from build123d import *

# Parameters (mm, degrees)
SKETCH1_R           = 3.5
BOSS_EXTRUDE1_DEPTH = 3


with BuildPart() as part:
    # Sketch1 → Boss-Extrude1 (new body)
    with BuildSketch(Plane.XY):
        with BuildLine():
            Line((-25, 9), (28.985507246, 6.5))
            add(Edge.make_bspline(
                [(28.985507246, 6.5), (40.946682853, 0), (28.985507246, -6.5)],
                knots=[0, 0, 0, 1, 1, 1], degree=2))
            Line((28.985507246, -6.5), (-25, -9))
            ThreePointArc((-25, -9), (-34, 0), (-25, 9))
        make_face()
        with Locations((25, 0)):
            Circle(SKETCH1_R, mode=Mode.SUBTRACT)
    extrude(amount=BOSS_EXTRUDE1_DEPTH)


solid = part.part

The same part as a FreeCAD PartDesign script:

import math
import FreeCAD as App
import Part
import Sketcher

doc = App.newDocument("Part")
params = doc.addObject("Spreadsheet::Sheet", "Params")
for row, (alias, value) in enumerate([
    ("sketch1_diameter", "7 mm"),
    ("sketch1_radius", "9 mm"),
    ("pad1_length", "3 mm"),
], start=1):
    params.set(f"A{row}", alias)
    params.set(f"B{row}", "=" + value)
    params.setAlias(f"B{row}", alias)

body = doc.addObject("PartDesign::Body", "Body")

# Sketch on XY plane
sketch1 = body.newObject("Sketcher::SketchObject", "Sketch")
sketch1.AttachmentSupport = (doc.getObject("XY_Plane"), [""])
sketch1.MapMode = "FlatFace"
sketch1.addGeometry([
    Part.LineSegment(App.Vector(28.985507, 6.5, 0), App.Vector(-25, 9, 0)),  # 0
    Part.ArcOfCircle(Part.Circle(App.Vector(-25, 0, 0), App.Vector(0, 0, 1), 9), math.radians(90), math.radians(270)),  # 1
    Part.LineSegment(App.Vector(-25, -9, 0), App.Vector(28.985507, -6.5, 0)),  # 2
    Part.BSplineCurve([App.Vector(28.985507, 6.5, 0), App.Vector(40.946683, 0, 0), App.Vector(28.985507, -6.5, 0)], [3, 3], [0, 1], False, 2, [1, 1, 1], False),  # 3
    Part.Circle(App.Vector(25, 0, 0), App.Vector(0, 0, 1), 3.5),  # 4
], False)
sketch1.addConstraint([
    Sketcher.Constraint("Block", 3),
    Sketcher.Constraint("Coincident", 0, 2, 1, 1),
    Sketcher.Constraint("Coincident", 1, 2, 2, 1),
    Sketcher.Constraint("Coincident", 2, 2, 3, 2),
    Sketcher.Constraint("Coincident", 3, 1, 0, 1),
    Sketcher.Constraint("Symmetric", 1, 3, 4, 3, -1, 1),
    Sketcher.Constraint("Symmetric", 0, 2, 1, 2, -1),
    Sketcher.Constraint("Vertical", 1, 3, 0, 2),
    Sketcher.Constraint("Diameter", 4, 7.0),
    Sketcher.Constraint("Radius", 1, 9.0),
    Sketcher.Constraint("DistanceX", 1, 3, -1, 1, 25.0),
])
sketch1.setExpression("Constraints[8]", "Params.sketch1_diameter")
sketch1.setExpression("Constraints[9]", "Params.sketch1_radius")
pad1 = body.newObject("PartDesign::Pad", "Pad")
pad1.Profile = sketch1
pad1.setExpression("Length", "Params.pad1_length")

doc.recompute()
